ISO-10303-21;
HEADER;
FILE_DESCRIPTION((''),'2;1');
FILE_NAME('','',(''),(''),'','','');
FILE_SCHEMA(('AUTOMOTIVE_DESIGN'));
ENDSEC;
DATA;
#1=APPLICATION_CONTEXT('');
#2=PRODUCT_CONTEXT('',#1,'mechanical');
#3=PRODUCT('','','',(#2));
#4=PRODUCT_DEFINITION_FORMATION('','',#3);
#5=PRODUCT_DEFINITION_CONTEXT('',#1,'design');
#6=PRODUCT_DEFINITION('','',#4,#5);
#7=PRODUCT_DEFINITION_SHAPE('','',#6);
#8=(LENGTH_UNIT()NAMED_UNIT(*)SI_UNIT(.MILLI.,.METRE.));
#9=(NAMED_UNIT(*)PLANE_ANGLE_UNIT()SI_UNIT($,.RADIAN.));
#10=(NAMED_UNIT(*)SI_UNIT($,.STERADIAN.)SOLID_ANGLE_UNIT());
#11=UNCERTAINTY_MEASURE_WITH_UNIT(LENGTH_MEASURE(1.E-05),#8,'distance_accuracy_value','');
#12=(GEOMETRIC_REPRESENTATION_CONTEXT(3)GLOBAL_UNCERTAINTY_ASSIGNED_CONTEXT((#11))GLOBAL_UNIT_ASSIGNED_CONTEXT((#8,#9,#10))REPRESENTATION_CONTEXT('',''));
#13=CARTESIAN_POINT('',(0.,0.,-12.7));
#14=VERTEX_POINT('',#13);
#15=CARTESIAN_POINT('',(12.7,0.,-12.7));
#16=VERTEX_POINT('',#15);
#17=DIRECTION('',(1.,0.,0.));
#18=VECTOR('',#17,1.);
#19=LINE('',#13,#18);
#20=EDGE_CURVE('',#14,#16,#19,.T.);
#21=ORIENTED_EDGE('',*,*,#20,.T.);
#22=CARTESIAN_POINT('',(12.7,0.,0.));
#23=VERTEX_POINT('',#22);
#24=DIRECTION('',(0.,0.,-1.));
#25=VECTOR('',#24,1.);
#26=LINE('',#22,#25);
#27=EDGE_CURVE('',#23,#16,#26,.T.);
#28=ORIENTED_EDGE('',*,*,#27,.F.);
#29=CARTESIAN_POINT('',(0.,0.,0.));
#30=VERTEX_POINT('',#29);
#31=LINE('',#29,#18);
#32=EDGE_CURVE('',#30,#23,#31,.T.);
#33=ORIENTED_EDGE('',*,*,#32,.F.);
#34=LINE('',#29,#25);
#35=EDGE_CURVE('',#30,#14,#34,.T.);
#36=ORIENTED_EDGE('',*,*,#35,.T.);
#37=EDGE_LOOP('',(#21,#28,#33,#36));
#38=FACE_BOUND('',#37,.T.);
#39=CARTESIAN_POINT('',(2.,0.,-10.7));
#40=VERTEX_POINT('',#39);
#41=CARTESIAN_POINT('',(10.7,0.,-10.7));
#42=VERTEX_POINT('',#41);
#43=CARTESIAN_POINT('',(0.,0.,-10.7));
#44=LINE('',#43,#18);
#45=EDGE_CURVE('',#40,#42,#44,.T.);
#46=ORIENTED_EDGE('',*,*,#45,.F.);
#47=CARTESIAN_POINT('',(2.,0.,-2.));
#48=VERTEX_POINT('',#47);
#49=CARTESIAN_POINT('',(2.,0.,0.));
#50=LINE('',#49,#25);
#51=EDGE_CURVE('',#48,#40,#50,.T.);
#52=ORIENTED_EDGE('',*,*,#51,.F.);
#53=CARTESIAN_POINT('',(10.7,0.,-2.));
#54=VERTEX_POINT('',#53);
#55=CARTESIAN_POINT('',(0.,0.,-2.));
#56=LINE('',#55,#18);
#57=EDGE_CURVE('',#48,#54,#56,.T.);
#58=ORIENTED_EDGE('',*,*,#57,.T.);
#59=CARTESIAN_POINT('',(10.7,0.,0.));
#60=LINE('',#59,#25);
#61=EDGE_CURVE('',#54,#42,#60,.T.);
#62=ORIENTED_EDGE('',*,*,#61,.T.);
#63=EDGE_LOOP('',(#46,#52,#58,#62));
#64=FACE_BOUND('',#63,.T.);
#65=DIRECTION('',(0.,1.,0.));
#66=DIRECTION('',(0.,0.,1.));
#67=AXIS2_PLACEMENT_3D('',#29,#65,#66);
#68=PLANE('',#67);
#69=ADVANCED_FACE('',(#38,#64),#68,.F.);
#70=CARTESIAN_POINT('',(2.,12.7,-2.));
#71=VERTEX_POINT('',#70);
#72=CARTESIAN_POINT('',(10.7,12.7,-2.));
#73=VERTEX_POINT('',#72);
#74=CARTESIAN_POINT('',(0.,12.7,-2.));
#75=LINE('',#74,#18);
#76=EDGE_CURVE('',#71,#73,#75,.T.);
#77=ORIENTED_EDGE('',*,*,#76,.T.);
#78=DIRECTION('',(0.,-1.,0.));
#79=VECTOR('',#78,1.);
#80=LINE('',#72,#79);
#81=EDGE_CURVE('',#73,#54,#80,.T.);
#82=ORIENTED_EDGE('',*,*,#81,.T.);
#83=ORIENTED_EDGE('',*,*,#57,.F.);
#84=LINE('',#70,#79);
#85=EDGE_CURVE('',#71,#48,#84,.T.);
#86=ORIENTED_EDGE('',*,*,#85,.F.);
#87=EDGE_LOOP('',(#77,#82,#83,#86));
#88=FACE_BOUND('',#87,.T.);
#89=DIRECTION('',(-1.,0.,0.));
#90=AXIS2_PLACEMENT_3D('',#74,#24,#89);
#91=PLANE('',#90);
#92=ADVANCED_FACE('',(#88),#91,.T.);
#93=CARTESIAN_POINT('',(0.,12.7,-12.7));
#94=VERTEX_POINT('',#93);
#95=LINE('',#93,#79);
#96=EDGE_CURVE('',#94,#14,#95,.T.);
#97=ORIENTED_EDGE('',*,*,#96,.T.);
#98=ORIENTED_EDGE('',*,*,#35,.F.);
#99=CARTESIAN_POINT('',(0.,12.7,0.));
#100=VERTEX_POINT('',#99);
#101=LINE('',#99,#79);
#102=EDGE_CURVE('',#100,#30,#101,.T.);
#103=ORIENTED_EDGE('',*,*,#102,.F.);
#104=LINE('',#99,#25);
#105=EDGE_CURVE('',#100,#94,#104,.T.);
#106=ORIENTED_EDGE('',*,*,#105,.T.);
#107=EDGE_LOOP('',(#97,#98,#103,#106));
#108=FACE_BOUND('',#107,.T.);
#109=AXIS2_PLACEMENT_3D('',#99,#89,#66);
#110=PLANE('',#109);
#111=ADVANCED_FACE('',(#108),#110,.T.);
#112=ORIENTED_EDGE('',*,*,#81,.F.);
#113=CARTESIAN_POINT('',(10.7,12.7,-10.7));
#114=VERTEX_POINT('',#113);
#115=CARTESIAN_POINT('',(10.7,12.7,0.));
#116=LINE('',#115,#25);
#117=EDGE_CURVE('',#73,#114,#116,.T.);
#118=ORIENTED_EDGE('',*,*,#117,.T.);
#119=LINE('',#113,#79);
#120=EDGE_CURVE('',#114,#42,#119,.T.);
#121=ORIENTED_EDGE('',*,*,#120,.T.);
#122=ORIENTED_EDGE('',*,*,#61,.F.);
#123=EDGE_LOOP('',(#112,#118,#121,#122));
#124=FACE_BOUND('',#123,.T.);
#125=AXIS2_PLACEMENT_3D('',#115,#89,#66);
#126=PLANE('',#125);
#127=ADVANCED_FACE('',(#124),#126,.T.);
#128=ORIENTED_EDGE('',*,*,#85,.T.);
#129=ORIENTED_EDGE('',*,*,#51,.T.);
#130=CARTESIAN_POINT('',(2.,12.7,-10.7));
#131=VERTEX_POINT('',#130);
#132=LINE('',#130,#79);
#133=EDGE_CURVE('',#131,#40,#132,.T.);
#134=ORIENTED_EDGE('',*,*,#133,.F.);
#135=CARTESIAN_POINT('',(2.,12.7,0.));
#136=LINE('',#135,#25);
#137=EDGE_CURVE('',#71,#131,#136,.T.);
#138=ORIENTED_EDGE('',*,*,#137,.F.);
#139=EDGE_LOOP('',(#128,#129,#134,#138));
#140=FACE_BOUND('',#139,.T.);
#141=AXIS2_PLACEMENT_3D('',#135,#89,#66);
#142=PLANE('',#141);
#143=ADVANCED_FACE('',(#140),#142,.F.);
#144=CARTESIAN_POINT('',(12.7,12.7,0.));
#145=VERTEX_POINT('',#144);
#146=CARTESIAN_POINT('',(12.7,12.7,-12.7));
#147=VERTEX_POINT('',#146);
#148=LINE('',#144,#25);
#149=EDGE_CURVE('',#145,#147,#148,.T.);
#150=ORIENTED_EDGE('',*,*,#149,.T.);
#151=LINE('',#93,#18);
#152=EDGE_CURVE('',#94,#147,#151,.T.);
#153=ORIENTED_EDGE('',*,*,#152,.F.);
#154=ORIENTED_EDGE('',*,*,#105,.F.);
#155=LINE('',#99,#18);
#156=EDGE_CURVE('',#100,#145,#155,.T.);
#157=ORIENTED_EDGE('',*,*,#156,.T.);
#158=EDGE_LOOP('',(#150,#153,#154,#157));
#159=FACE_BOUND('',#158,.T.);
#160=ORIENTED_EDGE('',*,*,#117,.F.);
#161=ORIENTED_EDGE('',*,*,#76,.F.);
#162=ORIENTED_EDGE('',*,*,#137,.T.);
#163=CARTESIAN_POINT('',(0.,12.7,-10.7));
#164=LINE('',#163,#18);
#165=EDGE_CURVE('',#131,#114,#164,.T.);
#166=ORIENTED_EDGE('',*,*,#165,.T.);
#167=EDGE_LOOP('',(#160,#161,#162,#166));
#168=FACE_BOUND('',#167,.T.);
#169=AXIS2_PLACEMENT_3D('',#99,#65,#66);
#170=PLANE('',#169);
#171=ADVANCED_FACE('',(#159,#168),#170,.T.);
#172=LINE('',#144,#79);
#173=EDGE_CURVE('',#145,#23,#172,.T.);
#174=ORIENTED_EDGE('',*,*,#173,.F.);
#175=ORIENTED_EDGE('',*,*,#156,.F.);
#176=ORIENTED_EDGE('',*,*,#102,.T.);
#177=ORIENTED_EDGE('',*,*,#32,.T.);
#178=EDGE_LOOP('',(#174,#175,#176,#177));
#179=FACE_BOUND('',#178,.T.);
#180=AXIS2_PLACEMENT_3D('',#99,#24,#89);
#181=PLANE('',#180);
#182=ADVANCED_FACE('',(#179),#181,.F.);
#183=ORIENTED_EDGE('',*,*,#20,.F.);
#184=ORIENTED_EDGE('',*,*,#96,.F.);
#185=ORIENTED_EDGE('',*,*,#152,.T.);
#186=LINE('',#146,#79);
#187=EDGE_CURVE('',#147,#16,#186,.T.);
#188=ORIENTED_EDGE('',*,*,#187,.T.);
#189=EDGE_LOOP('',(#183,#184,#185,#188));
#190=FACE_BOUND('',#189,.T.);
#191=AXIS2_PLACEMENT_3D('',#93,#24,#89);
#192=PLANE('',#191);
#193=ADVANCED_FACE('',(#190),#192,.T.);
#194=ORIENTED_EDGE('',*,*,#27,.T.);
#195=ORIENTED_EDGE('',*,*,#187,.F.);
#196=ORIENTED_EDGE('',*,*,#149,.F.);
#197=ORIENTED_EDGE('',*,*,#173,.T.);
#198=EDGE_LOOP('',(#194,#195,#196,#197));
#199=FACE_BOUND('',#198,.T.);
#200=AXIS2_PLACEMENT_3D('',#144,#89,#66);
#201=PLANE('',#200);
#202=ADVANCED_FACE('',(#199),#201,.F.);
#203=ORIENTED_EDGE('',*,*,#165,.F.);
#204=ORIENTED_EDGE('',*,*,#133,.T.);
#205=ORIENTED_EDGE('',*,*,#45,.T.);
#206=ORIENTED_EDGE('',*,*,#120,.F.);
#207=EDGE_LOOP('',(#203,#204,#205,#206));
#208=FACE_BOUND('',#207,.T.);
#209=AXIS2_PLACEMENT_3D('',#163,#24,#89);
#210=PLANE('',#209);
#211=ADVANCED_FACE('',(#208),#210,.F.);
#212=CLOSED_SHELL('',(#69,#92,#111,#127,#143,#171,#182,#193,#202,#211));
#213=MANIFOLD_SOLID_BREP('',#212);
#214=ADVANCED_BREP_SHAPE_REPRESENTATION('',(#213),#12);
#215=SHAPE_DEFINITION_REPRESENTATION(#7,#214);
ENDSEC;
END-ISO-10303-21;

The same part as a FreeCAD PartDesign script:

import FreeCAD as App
import Part
import Sketcher


def add_polygon(sketch, points):
    """Adds a closed chain of lines whose ends are joined by coincident constraints."""
    first, n = sketch.GeometryCount, len(points)
    for a, b in zip(points, points[1:] + points[:1]):
        sketch.addGeometry(Part.LineSegment(App.Vector(*a, 0), App.Vector(*b, 0)), False)
    for i in range(n):
        sketch.addConstraint(Sketcher.Constraint("Coincident", first + i, 2, first + (i + 1) % n, 1))

doc = App.newDocument("Part")
body = doc.addObject("PartDesign::Body", "Body")

# Sketch on XZ plane
sketch1 = doc.addObject("Sketcher::SketchObject", "Sketch")
body.addObject(sketch1)
sketch1.AttachmentSupport = (doc.XZ_Plane, [""])
sketch1.MapMode = "FlatFace"
add_polygon(sketch1, [(0, -13), (0, 0), (13, 0), (13, -13)])  # lines 0-3
add_polygon(sketch1, [(11, -2), (2, -2), (2, -11), (11, -11)])  # lines 4-7
sketch1.addConstraint([
    Sketcher.Constraint("Vertical", 0),
    Sketcher.Constraint("Horizontal", 1),
    Sketcher.Constraint("Vertical", 2),
    Sketcher.Constraint("Horizontal", 3),
    Sketcher.Constraint("Horizontal", 4),
    Sketcher.Constraint("Vertical", 5),
    Sketcher.Constraint("Horizontal", 6),
    Sketcher.Constraint("Vertical", 7),
    Sketcher.Constraint("Coincident", 0, 2, -1, 1),
    Sketcher.Constraint("Equal", 3, 0),
    Sketcher.Constraint("Equal", 6, 5),
    Sketcher.Constraint("DistanceX", 1, 1, 1, 2, 12.7),
    Sketcher.Constraint("DistanceX", 4, 2, 4, 1, 8.7),
    Sketcher.Constraint("DistanceX", -1, 1, 4, 2, 2.0),
    Sketcher.Constraint("DistanceY", 4, 2, -1, 1, 2.0),
])
pad1 = doc.addObject("PartDesign::Pad", "Pad")
body.addObject(pad1)
pad1.Profile = sketch1
pad1.Length = 12.7
pad1.Reversed = True

doc.recompute()
